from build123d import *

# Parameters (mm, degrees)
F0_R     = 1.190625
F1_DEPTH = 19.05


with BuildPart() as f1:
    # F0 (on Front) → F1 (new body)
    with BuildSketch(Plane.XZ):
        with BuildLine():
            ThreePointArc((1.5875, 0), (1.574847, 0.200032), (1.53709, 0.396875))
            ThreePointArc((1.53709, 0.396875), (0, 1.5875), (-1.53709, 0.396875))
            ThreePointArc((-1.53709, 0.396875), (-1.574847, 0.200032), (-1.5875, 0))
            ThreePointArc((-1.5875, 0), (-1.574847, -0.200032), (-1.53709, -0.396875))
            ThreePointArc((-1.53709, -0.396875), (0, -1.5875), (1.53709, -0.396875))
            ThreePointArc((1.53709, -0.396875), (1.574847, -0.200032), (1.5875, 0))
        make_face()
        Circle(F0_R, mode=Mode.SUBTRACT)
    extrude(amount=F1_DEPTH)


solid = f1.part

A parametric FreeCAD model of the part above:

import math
import FreeCAD as App
import Part
import Sketcher
from FreeCAD import Vector
Q = App.Units.Quantity

doc = App.newDocument("Part")
body = doc.addObject("PartDesign::Body", "Body")

# Sketch on XZ plane
sketch1 = body.newObject("Sketcher::SketchObject", "Sketch")
sketch1.AttachmentSupport = (doc.getObject("XZ_Plane"), [""])
sketch1.MapMode = "FlatFace"
sketch1.addGeometry(Part.ArcOfCircle(Part.Circle(Vector(0.000001, -0.000001, 0), Vector(0, 0, 1), 1.587499), math.radians(0.000031), math.radians(14.477557)), False)
sketch1.addGeometry(Part.ArcOfCircle(Part.Circle(Vector(0, 0, 0), Vector(0, 0, 1), 1.5875), math.radians(14.477503), math.radians(165.522497)), False)
sketch1.addGeometry(Part.ArcOfCircle(Part.Circle(Vector(-0.000001, -0.000001, 0), Vector(0, 0, 1), 1.587499), math.radians(165.522443), math.radians(179.999969)), False)
sketch1.addGeometry(Part.ArcOfCircle(Part.Circle(Vector(-0.000001, 0.000001, 0), Vector(0, 0, 1), 1.587499), math.radians(-179.999969), math.radians(-165.522443)), False)
sketch1.addGeometry(Part.ArcOfCircle(Part.Circle(Vector(0, 0, 0), Vector(0, 0, 1), 1.5875), math.radians(-165.522497), math.radians(-14.477503)), False)
sketch1.addGeometry(Part.ArcOfCircle(Part.Circle(Vector(0.000001, 0.000001, 0), Vector(0, 0, 1), 1.587499), math.radians(-14.477557), math.radians(-0.000031)), False)
sketch1.addGeometry(Part.Circle(Vector(0, 0, 0), Vector(0, 0, 1), 1.190625), False)
sketch1.addConstraint(Sketcher.Constraint("Tangent", 0, 2, 1, 1))
sketch1.addConstraint(Sketcher.Constraint("Tangent", 1, 2, 2, 1))
sketch1.addConstraint(Sketcher.Constraint("Tangent", 2, 2, 3, 1))
sketch1.addConstraint(Sketcher.Constraint("Tangent", 3, 2, 4, 1))
sketch1.addConstraint(Sketcher.Constraint("Tangent", 4, 2, 5, 1))
sketch1.addConstraint(Sketcher.Constraint("Tangent", 5, 2, 0, 1))
sketch1.addConstraint(Sketcher.Constraint("Coincident", 0, 3, -1, 1))
sketch1.addConstraint(Sketcher.Constraint("Coincident", 2, 3, -1, 1))
sketch1.addConstraint(Sketcher.Constraint("Coincident", 6, 3, -1, 1))
sketch1.addConstraint(Sketcher.Constraint("Equal", 2, 3))
sketch1.addConstraint(Sketcher.Constraint("PointOnObject", 2, 2, -1))
sketch1.addConstraint(Sketcher.Constraint("PointOnObject", 5, 2, -1))
sketch1.addConstraint(Sketcher.Constraint("Horizontal", 0, 2, 1, 2))
sketch1.addConstraint(Sketcher.Constraint("Horizontal", 3, 2, 4, 2))
sketch1.addConstraint(Sketcher.Constraint("Vertical", 1, 2, 3, 2))
sketch1.addConstraint(Sketcher.Constraint("Diameter", 6, Q("0.09375 in")))
sketch1.addConstraint(Sketcher.Constraint("Radius", 0, Q("0.0624999 in")))
sketch1.addConstraint(Sketcher.Constraint("DistanceY", -1, 1, 0, 2, Q("0.015625 in")))
pad1 = body.newObject("PartDesign::Pad", "Pad")
pad1.Profile = sketch1
pad1.Length = Q("0.75 in")

doc.recompute()
